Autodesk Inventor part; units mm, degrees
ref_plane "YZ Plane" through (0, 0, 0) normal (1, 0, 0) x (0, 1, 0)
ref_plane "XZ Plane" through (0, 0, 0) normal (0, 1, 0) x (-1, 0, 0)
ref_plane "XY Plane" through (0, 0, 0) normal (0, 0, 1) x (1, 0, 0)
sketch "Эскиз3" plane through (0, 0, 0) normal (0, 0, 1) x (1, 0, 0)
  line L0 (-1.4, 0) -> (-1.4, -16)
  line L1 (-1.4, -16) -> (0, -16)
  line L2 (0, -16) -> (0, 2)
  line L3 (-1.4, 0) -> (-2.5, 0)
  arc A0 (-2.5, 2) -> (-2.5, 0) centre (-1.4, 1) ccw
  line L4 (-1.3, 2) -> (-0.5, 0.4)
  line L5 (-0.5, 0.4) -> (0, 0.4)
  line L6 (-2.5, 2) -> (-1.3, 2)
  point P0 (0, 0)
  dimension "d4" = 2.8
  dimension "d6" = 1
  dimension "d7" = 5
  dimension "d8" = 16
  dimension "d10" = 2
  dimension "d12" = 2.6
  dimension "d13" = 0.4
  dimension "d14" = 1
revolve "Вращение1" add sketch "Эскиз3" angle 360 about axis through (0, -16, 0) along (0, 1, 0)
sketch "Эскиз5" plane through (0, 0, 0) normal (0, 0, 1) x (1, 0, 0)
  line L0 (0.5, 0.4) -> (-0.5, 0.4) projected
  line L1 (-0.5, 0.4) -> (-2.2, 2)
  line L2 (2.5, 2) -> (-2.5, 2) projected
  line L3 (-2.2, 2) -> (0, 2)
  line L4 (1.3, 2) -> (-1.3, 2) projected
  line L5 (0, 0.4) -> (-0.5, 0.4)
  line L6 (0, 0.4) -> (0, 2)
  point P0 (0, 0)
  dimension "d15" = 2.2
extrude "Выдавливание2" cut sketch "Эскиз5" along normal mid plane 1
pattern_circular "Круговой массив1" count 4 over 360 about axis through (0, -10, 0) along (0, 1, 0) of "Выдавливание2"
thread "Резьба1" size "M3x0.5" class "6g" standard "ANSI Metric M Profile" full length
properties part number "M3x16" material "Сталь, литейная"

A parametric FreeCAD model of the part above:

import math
import FreeCAD as App
import Part
import Sketcher
Q = App.Units.Quantity


def add_polygon(sketch, points):
    """Adds a closed chain of lines whose ends are joined by coincident constraints."""
    first, n = sketch.GeometryCount, len(points)
    for a, b in zip(points, points[1:] + points[:1]):
        sketch.addGeometry(Part.LineSegment(App.Vector(*a, 0), App.Vector(*b, 0)), False)
    for i in range(n):
        sketch.addConstraint(Sketcher.Constraint("Coincident", first + i, 2, first + (i + 1) % n, 1))

doc = App.newDocument("Part")
body = doc.addObject("PartDesign::Body", "Body")

sketch1 = body.newObject("Sketcher::SketchObject", "Sketch")
sketch1.AttachmentSupport = (doc.getObject("XY_Plane"), [""])
sketch1.MapMode = "FlatFace"
sketch1.addGeometry(Part.LineSegment(App.Vector(-2.5, 0, 0), App.Vector(-1.4, 0, 0)), False)
sketch1.addGeometry(Part.LineSegment(App.Vector(-1.4, 0, 0), App.Vector(-1.4, -16, 0)), False)
sketch1.addGeometry(Part.LineSegment(App.Vector(-1.4, -16, 0), App.Vector(0, -16, 0)), False)
sketch1.addGeometry(Part.LineSegment(App.Vector(0, -16, 0), App.Vector(0, 0.4, 0)), False)
sketch1.addGeometry(Part.LineSegment(App.Vector(0, 0.4, 0), App.Vector(-0.5, 0.4, 0)), False)
sketch1.addGeometry(Part.LineSegment(App.Vector(-0.5, 0.4, 0), App.Vector(-1.3, 2, 0)), False)
sketch1.addGeometry(Part.LineSegment(App.Vector(-1.3, 2, 0), App.Vector(-2.5, 2, 0)), False)
sketch1.addGeometry(Part.ArcOfCircle(Part.Circle(App.Vector(-1.4, 1, 0), App.Vector(0, 0, 1), 1.5), math.radians(138), math.radians(222)), False)
sketch1.addConstraint(Sketcher.Constraint("Coincident", 0, 2, 1, 1))
sketch1.addConstraint(Sketcher.Constraint("Coincident", 1, 2, 2, 1))
sketch1.addConstraint(Sketcher.Constraint("Coincident", 2, 2, 3, 1))
sketch1.addConstraint(Sketcher.Constraint("Coincident", 3, 2, 4, 1))
sketch1.addConstraint(Sketcher.Constraint("Coincident", 4, 2, 5, 1))
sketch1.addConstraint(Sketcher.Constraint("Coincident", 5, 2, 6, 1))
sketch1.addConstraint(Sketcher.Constraint("Coincident", 6, 2, 7, 1))
sketch1.addConstraint(Sketcher.Constraint("Coincident", 7, 2, 0, 1))
sketch1.addConstraint(Sketcher.Constraint("Horizontal", 0))
sketch1.addConstraint(Sketcher.Constraint("Vertical", 1))
sketch1.addConstraint(Sketcher.Constraint("Horizontal", 2))
sketch1.addConstraint(Sketcher.Constraint("Vertical", 3))
sketch1.addConstraint(Sketcher.Constraint("Horizontal", 4))
sketch1.addConstraint(Sketcher.Constraint("Horizontal", 6))
sketch1.addConstraint(Sketcher.Constraint("PointOnObject", 0, 2, -1))
sketch1.addConstraint(Sketcher.Constraint("PointOnObject", 2, 2, -2))
sketch1.addConstraint(Sketcher.Constraint("Vertical", 7, 3, 0, 2))
sketch1.addConstraint(Sketcher.Constraint("Vertical", 6, 2, 7, 2))
sketch1.addConstraint(Sketcher.Constraint("DistanceY", 1, 2, 1, 1, Q("16 mm")))
sketch1.addConstraint(Sketcher.Constraint("DistanceY", -1, 1, 7, 3, Q("1 mm")))
sketch1.addConstraint(Sketcher.Constraint("DistanceX", 6, 2, 4, 2, Q("2 mm")))
sketch1.addConstraint(Sketcher.Constraint("DistanceY", -1, 1, 3, 2, Q("0.4 mm")))
sketch1.addConstraint(Sketcher.Constraint("DistanceX", 0, 1, 0, 2, Q("1.1 mm")))
sketch1.addConstraint(Sketcher.Constraint("DistanceX", 2, 1, 2, 2, Q("1.4 mm")))
sketch1.addConstraint(Sketcher.Constraint("DistanceX", 6, 2, 6, 1, Q("1.2 mm")))
revolution = body.newObject("PartDesign::Revolution", "Revolution")
revolution.Profile = sketch1
revolution.ReferenceAxis = (sketch1, ["V_Axis"])
revolution.Angle = 360

sketch2 = body.newObject("Sketcher::SketchObject", "Sketch001")
sketch2.AttachmentSupport = (doc.getObject("XY_Plane"), [""])
sketch2.MapMode = "FlatFace"
add_polygon(sketch2, [(-0.5, 0.4), (0, 0.4), (0, 2), (-2.2, 2)])
sketch2.addConstraint(Sketcher.Constraint("Horizontal", 0))
sketch2.addConstraint(Sketcher.Constraint("Vertical", 1))
sketch2.addConstraint(Sketcher.Constraint("Horizontal", 2))
sketch2.addConstraint(Sketcher.Constraint("PointOnObject", 0, 2, -2))
sketch2.addConstraint(Sketcher.Constraint("DistanceX", 2, 2, 2, 1, Q("2.2 mm")))
sketch2.addConstraint(Sketcher.Constraint("DistanceX", 0, 1, 0, 2, Q("0.5 mm")))
sketch2.addConstraint(Sketcher.Constraint("DistanceY", 1, 1, 1, 2, Q("1.6 mm")))
sketch2.addConstraint(Sketcher.Constraint("DistanceY", -1, 1, 1, 2, Q("2 mm")))
pocket1 = body.newObject("PartDesign::Pocket", "Pocket")
pocket1.Profile = sketch2
pocket1.Length = 1
pocket1.Midplane = True
doc.recompute()

polarpattern = body.newObject("PartDesign::PolarPattern", "PolarPattern")
polarpattern.Originals = [pocket1]
polarpattern.Axis = (doc.getObject("Y_Axis"), [""])
polarpattern.Angle = 360
polarpattern.Occurrences = 4
body.Tip = polarpattern

doc.recompute()
